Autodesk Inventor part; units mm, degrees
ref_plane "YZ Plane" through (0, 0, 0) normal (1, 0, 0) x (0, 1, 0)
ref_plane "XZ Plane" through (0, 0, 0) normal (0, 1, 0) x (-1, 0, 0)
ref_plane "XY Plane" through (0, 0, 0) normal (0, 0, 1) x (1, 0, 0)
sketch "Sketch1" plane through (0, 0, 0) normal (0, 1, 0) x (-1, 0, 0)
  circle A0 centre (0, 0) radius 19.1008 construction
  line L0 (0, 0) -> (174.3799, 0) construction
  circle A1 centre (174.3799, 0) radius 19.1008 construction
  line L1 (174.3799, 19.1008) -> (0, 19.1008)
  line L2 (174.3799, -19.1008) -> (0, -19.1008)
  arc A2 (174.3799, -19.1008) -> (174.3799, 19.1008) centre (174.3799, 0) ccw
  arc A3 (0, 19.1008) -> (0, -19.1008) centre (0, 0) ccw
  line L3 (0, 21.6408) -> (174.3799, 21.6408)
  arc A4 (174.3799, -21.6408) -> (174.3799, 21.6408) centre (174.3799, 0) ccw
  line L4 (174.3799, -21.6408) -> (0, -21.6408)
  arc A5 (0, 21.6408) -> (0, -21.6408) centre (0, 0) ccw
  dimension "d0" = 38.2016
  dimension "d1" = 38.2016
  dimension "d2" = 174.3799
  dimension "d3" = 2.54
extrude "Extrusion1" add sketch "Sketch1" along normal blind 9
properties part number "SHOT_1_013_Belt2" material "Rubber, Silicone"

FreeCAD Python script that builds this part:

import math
import FreeCAD as App
import Part
import Sketcher

V = App.Vector
Q = App.Units.Quantity

doc = App.newDocument("Part")
body = doc.addObject("PartDesign::Body", "Body")

sketch1 = body.newObject("Sketcher::SketchObject", "Sketch")
sketch1.AttachmentSupport = (doc.getObject("XZ_Plane"), [""])
sketch1.MapMode = "FlatFace"
sketch1.addGeometry([
    Part.LineSegment(V(-174, 22, 0), V(0, 22, 0)),
    Part.ArcOfCircle(Part.Circle(V(0, 0, 0), V(0, 0, 1), 22), math.radians(-90), math.radians(90)),
    Part.LineSegment(V(0, -22, 0), V(-174, -22, 0)),
    Part.ArcOfCircle(Part.Circle(V(-174, 0, 0), V(0, 0, 1), 22), math.radians(90), math.radians(270)),
    Part.LineSegment(V(0, 19, 0), V(-174, 19, 0)),
    Part.ArcOfCircle(Part.Circle(V(-174, 0, 0), V(0, 0, 1), 19), math.radians(90), math.radians(270)),
    Part.LineSegment(V(-174, -19, 0), V(0, -19, 0)),
    Part.ArcOfCircle(Part.Circle(V(0, 0, 0), V(0, 0, 1), 19), math.radians(-90), math.radians(90)),
], False)
sketch1.addConstraint([
    Sketcher.Constraint("Tangent", 0, 2, 1, 2),
    Sketcher.Constraint("Tangent", 1, 1, 2, 1),
    Sketcher.Constraint("Tangent", 2, 2, 3, 2),
    Sketcher.Constraint("Tangent", 3, 1, 0, 1),
    Sketcher.Constraint("Tangent", 4, 2, 5, 1),
    Sketcher.Constraint("Tangent", 5, 2, 6, 1),
    Sketcher.Constraint("Tangent", 6, 2, 7, 1),
    Sketcher.Constraint("Tangent", 7, 2, 4, 1),
    Sketcher.Constraint("Horizontal", 0),
    Sketcher.Constraint("Horizontal", 2),
    Sketcher.Constraint("Horizontal", 4),
    Sketcher.Constraint("Horizontal", 6),
    Sketcher.Constraint("Coincident", 1, 3, -1, 1),
    Sketcher.Constraint("Coincident", 7, 3, -1, 1),
    Sketcher.Constraint("Vertical", 5, 3, 2, 2),
    Sketcher.Constraint("Radius", 5, Q("0.752 in")),
    Sketcher.Constraint("DistanceY", 4, 2, 3, 1, Q("0.1 in")),
    Sketcher.Constraint("DistanceX", 0, 1, 0, 2, 174.38),
])
pad1 = body.newObject("PartDesign::Pad", "Pad")
pad1.Profile = sketch1
pad1.Length = 9
pad1.Reversed = True

doc.recompute()
